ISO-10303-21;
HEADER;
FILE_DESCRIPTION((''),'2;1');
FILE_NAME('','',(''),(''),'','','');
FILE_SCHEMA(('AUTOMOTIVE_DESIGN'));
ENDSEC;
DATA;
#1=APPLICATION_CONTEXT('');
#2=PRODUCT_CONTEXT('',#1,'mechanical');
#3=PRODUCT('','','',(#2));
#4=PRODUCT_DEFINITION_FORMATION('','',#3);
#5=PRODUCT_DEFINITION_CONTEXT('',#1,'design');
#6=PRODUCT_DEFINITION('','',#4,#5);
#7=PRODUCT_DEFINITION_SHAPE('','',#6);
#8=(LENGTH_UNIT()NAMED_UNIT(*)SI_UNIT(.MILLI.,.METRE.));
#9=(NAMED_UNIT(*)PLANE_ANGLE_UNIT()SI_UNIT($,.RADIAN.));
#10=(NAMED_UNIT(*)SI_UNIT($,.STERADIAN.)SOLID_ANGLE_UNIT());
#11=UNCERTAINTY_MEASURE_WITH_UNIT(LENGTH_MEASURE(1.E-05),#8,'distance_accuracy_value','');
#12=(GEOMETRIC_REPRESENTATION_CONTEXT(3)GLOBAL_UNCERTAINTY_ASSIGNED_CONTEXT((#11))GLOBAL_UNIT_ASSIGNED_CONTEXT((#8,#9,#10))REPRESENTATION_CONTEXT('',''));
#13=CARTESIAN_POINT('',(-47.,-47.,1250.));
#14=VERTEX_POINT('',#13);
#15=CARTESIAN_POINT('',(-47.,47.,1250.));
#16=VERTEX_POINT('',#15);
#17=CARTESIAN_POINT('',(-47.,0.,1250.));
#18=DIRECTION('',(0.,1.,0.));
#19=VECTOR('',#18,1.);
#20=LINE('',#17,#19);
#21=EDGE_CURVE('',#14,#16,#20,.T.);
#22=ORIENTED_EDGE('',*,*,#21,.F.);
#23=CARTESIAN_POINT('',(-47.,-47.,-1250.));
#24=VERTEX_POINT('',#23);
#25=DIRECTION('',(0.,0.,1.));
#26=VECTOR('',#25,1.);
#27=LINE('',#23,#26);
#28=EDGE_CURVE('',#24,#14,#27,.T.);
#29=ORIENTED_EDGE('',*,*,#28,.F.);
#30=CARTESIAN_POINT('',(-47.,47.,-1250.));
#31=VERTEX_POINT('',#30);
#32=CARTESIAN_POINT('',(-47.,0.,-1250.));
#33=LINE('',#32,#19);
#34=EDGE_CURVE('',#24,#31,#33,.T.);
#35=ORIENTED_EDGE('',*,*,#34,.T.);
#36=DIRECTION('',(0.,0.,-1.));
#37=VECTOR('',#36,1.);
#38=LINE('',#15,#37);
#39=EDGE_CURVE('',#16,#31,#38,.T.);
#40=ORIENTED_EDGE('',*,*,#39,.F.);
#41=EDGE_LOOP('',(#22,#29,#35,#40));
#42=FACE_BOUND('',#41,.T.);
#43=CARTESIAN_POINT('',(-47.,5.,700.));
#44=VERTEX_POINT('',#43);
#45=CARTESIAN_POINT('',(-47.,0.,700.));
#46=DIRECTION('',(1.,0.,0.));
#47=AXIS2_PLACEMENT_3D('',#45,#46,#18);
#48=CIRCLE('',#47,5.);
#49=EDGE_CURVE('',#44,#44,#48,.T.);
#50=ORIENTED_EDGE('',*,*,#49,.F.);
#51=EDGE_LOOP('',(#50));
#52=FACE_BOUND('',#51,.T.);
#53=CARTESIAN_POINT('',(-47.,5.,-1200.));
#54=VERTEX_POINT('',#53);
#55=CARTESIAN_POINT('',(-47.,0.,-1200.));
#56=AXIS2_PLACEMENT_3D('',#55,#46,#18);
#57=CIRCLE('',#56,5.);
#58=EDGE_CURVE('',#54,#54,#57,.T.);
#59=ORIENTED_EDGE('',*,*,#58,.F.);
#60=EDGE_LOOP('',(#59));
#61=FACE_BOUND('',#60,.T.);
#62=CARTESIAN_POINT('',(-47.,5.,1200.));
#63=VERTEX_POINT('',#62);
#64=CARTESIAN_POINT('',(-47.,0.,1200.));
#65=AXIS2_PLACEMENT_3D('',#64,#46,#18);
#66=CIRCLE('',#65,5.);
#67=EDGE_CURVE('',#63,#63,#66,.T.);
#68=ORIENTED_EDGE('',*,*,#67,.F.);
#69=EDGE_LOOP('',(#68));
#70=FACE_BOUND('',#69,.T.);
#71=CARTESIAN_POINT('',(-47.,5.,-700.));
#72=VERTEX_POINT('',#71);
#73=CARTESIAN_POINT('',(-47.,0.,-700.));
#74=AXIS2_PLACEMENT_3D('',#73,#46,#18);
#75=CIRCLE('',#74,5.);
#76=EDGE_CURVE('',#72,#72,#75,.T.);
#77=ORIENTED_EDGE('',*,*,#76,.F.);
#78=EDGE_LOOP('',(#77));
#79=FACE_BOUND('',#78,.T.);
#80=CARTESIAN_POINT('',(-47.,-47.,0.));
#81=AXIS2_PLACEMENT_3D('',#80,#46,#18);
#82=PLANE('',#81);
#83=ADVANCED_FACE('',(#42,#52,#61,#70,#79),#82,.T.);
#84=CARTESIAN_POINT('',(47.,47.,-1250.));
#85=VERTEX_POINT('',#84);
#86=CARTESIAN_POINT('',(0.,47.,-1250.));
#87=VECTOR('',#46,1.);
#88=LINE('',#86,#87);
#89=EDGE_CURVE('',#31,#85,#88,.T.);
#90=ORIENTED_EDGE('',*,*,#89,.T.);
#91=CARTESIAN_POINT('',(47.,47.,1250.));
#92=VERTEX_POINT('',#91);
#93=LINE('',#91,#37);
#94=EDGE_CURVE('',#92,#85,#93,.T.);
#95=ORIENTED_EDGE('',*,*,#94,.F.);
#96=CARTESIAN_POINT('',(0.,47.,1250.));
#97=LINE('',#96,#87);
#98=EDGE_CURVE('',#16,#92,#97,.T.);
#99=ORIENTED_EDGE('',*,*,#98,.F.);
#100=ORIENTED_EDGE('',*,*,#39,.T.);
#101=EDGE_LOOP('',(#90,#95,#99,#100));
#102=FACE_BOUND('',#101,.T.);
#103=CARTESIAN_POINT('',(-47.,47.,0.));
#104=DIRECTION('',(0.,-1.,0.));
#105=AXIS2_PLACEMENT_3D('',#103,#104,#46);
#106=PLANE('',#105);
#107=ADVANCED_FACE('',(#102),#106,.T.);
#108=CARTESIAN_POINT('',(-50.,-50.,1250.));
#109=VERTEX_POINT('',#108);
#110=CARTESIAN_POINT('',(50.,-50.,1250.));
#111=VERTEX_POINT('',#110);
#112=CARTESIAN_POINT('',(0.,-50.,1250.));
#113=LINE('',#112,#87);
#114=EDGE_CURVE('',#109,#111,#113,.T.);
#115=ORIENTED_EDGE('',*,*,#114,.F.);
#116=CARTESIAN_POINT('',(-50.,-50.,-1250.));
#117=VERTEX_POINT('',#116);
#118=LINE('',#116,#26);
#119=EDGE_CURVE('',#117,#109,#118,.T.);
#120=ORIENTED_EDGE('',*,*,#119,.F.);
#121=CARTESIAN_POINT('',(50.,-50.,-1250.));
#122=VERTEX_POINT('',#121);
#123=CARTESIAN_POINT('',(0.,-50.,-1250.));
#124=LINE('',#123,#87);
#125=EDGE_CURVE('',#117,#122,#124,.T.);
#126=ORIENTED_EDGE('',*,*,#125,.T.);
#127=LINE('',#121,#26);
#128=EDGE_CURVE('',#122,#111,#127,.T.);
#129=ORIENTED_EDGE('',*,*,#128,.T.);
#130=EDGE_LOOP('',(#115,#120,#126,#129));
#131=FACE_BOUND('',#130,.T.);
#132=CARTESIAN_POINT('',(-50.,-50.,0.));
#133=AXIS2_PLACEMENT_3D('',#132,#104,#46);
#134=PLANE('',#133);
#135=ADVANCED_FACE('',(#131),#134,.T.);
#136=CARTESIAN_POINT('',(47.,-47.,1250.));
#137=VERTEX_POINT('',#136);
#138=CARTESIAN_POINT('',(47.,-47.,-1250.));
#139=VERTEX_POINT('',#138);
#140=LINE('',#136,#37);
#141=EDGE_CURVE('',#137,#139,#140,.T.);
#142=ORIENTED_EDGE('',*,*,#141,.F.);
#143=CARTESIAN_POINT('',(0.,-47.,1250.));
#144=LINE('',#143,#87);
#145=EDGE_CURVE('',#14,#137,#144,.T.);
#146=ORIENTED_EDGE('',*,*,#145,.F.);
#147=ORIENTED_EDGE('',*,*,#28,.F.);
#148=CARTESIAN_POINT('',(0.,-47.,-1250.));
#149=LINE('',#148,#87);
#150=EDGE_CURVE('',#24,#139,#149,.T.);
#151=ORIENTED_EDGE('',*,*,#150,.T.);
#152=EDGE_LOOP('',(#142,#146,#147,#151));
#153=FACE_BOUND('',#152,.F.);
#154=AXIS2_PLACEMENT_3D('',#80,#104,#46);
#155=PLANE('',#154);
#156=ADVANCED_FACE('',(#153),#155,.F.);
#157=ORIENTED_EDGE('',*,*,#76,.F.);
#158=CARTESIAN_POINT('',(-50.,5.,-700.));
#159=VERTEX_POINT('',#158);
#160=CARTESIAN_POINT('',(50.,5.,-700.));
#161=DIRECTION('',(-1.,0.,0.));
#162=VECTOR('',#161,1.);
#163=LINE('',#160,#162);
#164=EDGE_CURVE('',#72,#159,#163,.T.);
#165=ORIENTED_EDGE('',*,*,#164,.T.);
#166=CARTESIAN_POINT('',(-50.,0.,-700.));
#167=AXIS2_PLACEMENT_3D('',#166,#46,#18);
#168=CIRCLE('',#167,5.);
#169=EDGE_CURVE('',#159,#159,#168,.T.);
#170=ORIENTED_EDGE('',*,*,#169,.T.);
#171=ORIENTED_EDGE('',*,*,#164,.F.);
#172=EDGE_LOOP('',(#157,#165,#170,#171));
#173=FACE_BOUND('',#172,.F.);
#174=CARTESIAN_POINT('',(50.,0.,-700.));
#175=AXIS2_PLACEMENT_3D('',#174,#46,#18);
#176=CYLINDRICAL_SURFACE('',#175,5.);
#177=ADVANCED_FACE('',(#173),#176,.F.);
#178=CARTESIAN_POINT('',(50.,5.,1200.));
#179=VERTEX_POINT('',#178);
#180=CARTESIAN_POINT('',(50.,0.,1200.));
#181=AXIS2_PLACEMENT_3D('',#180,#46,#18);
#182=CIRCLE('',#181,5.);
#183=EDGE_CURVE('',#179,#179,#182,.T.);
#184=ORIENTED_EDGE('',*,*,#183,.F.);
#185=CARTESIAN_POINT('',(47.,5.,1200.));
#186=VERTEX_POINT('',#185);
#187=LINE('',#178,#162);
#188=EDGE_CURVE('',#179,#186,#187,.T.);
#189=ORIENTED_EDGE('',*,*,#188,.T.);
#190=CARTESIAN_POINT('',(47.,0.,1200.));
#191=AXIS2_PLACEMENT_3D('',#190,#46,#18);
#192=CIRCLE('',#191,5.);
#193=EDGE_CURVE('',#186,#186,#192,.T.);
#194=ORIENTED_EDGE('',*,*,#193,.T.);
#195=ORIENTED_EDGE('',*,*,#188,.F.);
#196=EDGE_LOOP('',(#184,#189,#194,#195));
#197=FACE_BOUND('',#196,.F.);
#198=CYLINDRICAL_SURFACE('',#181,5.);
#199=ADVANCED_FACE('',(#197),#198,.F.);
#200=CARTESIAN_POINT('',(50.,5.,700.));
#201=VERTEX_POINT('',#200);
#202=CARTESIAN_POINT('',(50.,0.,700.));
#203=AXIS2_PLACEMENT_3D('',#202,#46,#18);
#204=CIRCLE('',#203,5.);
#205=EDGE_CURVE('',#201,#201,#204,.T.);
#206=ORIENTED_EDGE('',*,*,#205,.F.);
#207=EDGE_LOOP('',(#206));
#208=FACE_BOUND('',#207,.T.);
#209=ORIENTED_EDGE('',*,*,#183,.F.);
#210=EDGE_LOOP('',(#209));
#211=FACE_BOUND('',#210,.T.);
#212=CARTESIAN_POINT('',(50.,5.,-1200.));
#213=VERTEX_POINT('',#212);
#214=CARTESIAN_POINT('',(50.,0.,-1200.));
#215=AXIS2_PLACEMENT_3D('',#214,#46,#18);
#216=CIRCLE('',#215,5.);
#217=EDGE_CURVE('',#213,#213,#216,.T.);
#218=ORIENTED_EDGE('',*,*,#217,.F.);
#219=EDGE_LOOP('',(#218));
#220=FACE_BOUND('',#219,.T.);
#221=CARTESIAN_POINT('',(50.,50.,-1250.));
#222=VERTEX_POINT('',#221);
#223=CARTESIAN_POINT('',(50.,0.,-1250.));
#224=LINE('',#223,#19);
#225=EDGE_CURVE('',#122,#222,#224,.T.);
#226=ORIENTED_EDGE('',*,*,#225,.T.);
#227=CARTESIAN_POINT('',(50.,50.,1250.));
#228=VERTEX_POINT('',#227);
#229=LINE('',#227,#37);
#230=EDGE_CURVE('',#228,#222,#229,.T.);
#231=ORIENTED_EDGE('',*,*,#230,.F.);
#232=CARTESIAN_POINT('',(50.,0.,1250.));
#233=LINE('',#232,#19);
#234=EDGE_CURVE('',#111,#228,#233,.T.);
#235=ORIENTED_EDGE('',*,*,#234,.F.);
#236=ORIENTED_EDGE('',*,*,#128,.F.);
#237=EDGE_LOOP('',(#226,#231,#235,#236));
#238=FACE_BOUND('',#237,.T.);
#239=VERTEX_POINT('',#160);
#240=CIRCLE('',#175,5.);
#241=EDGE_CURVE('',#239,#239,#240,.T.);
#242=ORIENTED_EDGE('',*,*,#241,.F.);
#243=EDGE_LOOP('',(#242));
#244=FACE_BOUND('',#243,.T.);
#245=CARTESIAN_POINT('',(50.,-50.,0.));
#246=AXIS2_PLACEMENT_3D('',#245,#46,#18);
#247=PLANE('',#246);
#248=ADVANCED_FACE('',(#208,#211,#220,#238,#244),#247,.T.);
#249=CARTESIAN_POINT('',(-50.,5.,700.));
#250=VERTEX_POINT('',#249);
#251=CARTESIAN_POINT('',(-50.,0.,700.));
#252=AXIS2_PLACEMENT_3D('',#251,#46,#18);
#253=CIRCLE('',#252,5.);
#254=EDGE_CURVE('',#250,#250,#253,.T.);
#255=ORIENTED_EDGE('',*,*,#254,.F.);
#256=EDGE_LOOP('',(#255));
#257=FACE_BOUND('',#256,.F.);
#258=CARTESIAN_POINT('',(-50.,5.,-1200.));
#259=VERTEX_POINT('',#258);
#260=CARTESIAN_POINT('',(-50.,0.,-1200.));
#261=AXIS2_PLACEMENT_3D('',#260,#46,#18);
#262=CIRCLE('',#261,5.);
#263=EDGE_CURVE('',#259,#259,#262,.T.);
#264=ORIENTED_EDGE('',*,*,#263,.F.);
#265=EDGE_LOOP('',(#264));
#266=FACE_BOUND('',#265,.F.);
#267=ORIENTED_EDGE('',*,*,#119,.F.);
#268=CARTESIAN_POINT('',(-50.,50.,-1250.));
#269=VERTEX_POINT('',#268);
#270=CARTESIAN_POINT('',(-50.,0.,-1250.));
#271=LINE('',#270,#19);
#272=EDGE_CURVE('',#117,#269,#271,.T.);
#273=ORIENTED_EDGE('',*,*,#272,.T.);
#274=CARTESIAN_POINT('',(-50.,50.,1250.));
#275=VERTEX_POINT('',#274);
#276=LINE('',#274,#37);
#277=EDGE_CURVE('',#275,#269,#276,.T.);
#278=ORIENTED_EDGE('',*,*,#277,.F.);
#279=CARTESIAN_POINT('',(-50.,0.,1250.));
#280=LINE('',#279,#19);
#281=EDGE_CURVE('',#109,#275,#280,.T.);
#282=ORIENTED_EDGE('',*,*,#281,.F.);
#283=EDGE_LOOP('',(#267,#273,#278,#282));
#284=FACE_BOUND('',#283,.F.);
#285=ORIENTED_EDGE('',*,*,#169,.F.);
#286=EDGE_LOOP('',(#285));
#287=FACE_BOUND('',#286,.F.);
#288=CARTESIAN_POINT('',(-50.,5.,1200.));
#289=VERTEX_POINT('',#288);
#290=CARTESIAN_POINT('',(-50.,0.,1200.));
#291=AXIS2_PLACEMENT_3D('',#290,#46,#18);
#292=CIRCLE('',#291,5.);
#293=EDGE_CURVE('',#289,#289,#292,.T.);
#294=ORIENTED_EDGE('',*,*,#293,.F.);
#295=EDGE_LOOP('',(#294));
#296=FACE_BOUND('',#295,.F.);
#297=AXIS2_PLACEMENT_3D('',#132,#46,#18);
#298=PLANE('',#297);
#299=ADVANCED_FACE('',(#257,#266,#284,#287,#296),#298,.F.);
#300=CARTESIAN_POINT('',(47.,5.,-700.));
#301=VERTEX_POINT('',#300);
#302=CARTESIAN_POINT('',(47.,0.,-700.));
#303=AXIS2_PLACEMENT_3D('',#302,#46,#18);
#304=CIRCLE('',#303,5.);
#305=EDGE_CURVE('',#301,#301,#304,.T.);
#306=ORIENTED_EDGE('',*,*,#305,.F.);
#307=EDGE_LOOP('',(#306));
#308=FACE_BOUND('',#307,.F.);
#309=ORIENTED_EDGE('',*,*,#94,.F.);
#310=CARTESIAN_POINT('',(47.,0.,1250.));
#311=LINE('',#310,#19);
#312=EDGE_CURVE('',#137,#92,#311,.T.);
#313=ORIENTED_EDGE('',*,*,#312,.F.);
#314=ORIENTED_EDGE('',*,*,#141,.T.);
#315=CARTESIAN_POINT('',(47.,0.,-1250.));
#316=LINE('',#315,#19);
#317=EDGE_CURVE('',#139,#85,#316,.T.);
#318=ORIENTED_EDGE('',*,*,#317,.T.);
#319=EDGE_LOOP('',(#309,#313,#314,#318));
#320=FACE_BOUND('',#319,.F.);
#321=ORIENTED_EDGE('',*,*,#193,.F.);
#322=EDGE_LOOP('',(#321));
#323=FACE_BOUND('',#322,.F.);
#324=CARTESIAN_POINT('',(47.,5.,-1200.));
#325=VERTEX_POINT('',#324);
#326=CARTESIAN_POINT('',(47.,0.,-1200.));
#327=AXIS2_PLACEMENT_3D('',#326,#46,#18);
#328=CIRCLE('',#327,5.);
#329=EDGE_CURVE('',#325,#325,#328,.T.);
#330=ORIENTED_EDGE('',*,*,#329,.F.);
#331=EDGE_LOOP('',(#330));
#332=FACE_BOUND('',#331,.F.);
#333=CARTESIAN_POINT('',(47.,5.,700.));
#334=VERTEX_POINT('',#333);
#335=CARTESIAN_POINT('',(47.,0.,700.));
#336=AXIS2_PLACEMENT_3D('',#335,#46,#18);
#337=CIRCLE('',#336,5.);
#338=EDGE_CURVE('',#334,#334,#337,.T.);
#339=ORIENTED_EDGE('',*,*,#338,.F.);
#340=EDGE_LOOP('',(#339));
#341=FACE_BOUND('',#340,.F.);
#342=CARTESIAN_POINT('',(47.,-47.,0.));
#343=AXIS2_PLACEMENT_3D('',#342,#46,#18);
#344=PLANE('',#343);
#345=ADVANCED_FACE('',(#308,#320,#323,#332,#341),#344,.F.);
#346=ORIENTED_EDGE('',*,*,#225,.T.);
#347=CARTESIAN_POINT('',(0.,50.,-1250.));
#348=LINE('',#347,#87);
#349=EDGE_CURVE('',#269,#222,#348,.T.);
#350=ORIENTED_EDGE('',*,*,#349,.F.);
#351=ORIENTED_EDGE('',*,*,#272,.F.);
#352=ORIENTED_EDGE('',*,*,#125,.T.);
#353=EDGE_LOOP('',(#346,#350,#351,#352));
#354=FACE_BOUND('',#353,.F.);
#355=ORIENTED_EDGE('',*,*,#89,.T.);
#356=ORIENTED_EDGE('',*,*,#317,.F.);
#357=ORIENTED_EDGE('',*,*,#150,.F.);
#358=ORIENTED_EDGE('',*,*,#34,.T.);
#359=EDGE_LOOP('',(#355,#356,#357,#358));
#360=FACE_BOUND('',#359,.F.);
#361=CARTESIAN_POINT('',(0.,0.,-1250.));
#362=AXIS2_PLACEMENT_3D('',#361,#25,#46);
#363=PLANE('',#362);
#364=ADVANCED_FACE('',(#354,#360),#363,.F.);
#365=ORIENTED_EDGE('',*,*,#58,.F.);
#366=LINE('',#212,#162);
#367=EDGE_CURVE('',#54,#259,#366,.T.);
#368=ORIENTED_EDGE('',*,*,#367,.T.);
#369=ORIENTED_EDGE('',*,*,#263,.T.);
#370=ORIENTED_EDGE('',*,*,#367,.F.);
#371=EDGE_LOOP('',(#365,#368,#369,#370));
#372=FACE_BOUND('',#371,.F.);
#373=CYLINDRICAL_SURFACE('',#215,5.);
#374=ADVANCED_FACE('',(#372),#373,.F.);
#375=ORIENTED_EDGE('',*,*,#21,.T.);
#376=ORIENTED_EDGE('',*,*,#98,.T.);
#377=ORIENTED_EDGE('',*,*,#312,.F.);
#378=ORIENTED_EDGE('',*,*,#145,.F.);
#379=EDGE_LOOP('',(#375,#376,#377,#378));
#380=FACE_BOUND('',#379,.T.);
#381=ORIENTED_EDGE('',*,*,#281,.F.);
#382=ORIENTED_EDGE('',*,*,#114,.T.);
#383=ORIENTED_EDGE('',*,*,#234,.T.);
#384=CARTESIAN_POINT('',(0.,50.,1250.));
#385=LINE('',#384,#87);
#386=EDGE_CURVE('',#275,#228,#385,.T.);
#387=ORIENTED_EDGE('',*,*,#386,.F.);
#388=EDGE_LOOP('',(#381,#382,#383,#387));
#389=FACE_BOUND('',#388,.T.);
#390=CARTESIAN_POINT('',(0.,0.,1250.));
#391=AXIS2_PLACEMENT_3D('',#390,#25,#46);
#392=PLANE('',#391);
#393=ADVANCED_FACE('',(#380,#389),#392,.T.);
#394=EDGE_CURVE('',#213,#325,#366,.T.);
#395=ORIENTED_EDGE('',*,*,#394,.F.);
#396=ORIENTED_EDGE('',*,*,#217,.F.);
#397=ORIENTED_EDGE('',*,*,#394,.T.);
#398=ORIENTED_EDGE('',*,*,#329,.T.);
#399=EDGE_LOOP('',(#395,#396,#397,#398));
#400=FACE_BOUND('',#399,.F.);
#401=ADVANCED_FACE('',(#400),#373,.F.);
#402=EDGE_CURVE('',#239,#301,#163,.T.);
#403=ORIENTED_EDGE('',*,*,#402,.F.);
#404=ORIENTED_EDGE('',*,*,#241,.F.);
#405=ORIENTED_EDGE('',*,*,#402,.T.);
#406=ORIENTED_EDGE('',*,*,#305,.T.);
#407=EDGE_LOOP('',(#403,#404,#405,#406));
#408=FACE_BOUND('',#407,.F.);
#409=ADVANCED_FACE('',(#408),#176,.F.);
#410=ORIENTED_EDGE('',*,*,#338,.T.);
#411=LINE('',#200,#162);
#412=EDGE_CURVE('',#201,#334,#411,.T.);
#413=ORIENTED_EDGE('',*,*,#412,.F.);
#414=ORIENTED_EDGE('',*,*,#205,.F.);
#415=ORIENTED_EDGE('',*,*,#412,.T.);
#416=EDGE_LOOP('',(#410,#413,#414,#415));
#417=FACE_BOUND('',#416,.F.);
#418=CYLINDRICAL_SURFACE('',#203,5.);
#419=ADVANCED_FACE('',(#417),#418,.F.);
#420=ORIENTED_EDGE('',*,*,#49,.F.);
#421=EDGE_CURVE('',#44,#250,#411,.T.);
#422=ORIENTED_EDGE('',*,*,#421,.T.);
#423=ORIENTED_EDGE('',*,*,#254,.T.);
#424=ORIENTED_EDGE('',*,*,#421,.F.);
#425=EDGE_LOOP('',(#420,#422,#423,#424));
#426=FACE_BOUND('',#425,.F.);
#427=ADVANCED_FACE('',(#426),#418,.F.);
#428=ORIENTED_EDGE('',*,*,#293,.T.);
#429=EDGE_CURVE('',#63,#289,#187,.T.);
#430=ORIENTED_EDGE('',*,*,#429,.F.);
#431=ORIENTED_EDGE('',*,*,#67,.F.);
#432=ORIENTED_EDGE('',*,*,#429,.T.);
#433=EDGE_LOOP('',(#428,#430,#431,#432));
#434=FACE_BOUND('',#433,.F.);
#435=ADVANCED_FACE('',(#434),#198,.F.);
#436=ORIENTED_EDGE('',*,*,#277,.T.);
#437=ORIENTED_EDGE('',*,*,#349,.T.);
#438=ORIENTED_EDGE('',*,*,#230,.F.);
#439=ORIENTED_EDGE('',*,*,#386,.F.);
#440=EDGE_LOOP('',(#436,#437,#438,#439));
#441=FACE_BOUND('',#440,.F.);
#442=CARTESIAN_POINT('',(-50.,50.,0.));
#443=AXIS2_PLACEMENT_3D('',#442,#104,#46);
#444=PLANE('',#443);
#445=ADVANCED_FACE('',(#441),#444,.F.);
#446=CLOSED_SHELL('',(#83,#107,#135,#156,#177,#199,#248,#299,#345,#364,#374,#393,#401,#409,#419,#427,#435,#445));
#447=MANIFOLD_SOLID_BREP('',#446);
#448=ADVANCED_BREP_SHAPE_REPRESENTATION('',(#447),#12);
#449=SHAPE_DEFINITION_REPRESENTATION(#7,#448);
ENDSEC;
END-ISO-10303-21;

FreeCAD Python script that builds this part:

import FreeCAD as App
import Part
import Sketcher
Q = App.Units.Quantity


def add_polygon(sketch, points):
    """Adds a closed chain of lines whose ends are joined by coincident constraints."""
    first, n = sketch.GeometryCount, len(points)
    for a, b in zip(points, points[1:] + points[:1]):
        sketch.addGeometry(Part.LineSegment(App.Vector(*a, 0), App.Vector(*b, 0)), False)
    for i in range(n):
        sketch.addConstraint(Sketcher.Constraint("Coincident", first + i, 2, first + (i + 1) % n, 1))

doc = App.newDocument("Part")
body = doc.addObject("PartDesign::Body", "Body")

# Sketch on XY plane
sketch1 = body.newObject("Sketcher::SketchObject", "Sketch")
sketch1.AttachmentSupport = (doc.getObject("XY_Plane"), [""])
sketch1.MapMode = "FlatFace"
add_polygon(sketch1, [(-50, 50), (-50, -50), (50, -50), (50, 50)])  # lines 0-3
add_polygon(sketch1, [(47, -47), (-47, -47), (-47, 47), (47, 47)])  # lines 4-7
sketch1.addConstraint(Sketcher.Constraint("Vertical", 0))
sketch1.addConstraint(Sketcher.Constraint("Horizontal", 1))
sketch1.addConstraint(Sketcher.Constraint("Vertical", 2))
sketch1.addConstraint(Sketcher.Constraint("Horizontal", 3))
sketch1.addConstraint(Sketcher.Constraint("Horizontal", 4))
sketch1.addConstraint(Sketcher.Constraint("Vertical", 5))
sketch1.addConstraint(Sketcher.Constraint("Horizontal", 6))
sketch1.addConstraint(Sketcher.Constraint("Vertical", 7))
sketch1.addConstraint(Sketcher.Constraint("Symmetric", 0, 2, 2, 2, -1, 1))
sketch1.addConstraint(Sketcher.Constraint("Symmetric", 4, 2, 6, 2, -1, 1))
sketch1.addConstraint(Sketcher.Constraint("Equal", 3, 0))
sketch1.addConstraint(Sketcher.Constraint("Equal", 6, 5))
sketch1.addConstraint(Sketcher.Constraint("DistanceX", 1, 1, 1, 2, Q("100 mm")))
sketch1.addConstraint(Sketcher.Constraint("DistanceX", 4, 2, 4, 1, Q("94 mm")))
pad1 = body.newObject("PartDesign::Pad", "Pad")
pad1.Profile = sketch1
pad1.Length = 2500
pad1.Midplane = True

# Sketch on YZ plane
sketch2 = body.newObject("Sketcher::SketchObject", "Sketch001")
sketch2.AttachmentSupport = (doc.getObject("YZ_Plane"), [""])
sketch2.MapMode = "FlatFace"
sketch2.AttachmentOffset = App.Placement(App.Vector(0, 0, 50), App.Rotation())
sketch2.addGeometry(Part.Circle(App.Vector(0, 1200, 0), App.Vector(0, 0, 1), 5), False)
sketch2.addGeometry(Part.Circle(App.Vector(0, 700, 0), App.Vector(0, 0, 1), 5), False)
sketch2.addGeometry(Part.Circle(App.Vector(0, -700, 0), App.Vector(0, 0, 1), 5), False)
sketch2.addGeometry(Part.Circle(App.Vector(0, -1200, 0), App.Vector(0, 0, 1), 5), False)
sketch2.addConstraint(Sketcher.Constraint("Equal", 0, 1))
sketch2.addConstraint(Sketcher.Constraint("Equal", 1, 2))
sketch2.addConstraint(Sketcher.Constraint("Equal", 2, 3))
sketch2.addConstraint(Sketcher.Constraint("Symmetric", 1, 3, 2, 3, -1, 1))
sketch2.addConstraint(Sketcher.Constraint("Symmetric", 0, 3, 3, 3, -1, 1))
sketch2.addConstraint(Sketcher.Constraint("PointOnObject", 0, 3, -2))
sketch2.addConstraint(Sketcher.Constraint("PointOnObject", 1, 3, -2))
sketch2.addConstraint(Sketcher.Constraint("Diameter", 0, Q("10 mm")))
sketch2.addConstraint(Sketcher.Constraint("DistanceY", -1, 1, 0, 3, Q("1200 mm")))
sketch2.addConstraint(Sketcher.Constraint("DistanceY", -1, 1, 1, 3, Q("700 mm")))
pocket1 = body.newObject("PartDesign::Pocket", "Pocket")
pocket1.Profile = sketch2
pocket1.Length = 300

doc.recompute()
